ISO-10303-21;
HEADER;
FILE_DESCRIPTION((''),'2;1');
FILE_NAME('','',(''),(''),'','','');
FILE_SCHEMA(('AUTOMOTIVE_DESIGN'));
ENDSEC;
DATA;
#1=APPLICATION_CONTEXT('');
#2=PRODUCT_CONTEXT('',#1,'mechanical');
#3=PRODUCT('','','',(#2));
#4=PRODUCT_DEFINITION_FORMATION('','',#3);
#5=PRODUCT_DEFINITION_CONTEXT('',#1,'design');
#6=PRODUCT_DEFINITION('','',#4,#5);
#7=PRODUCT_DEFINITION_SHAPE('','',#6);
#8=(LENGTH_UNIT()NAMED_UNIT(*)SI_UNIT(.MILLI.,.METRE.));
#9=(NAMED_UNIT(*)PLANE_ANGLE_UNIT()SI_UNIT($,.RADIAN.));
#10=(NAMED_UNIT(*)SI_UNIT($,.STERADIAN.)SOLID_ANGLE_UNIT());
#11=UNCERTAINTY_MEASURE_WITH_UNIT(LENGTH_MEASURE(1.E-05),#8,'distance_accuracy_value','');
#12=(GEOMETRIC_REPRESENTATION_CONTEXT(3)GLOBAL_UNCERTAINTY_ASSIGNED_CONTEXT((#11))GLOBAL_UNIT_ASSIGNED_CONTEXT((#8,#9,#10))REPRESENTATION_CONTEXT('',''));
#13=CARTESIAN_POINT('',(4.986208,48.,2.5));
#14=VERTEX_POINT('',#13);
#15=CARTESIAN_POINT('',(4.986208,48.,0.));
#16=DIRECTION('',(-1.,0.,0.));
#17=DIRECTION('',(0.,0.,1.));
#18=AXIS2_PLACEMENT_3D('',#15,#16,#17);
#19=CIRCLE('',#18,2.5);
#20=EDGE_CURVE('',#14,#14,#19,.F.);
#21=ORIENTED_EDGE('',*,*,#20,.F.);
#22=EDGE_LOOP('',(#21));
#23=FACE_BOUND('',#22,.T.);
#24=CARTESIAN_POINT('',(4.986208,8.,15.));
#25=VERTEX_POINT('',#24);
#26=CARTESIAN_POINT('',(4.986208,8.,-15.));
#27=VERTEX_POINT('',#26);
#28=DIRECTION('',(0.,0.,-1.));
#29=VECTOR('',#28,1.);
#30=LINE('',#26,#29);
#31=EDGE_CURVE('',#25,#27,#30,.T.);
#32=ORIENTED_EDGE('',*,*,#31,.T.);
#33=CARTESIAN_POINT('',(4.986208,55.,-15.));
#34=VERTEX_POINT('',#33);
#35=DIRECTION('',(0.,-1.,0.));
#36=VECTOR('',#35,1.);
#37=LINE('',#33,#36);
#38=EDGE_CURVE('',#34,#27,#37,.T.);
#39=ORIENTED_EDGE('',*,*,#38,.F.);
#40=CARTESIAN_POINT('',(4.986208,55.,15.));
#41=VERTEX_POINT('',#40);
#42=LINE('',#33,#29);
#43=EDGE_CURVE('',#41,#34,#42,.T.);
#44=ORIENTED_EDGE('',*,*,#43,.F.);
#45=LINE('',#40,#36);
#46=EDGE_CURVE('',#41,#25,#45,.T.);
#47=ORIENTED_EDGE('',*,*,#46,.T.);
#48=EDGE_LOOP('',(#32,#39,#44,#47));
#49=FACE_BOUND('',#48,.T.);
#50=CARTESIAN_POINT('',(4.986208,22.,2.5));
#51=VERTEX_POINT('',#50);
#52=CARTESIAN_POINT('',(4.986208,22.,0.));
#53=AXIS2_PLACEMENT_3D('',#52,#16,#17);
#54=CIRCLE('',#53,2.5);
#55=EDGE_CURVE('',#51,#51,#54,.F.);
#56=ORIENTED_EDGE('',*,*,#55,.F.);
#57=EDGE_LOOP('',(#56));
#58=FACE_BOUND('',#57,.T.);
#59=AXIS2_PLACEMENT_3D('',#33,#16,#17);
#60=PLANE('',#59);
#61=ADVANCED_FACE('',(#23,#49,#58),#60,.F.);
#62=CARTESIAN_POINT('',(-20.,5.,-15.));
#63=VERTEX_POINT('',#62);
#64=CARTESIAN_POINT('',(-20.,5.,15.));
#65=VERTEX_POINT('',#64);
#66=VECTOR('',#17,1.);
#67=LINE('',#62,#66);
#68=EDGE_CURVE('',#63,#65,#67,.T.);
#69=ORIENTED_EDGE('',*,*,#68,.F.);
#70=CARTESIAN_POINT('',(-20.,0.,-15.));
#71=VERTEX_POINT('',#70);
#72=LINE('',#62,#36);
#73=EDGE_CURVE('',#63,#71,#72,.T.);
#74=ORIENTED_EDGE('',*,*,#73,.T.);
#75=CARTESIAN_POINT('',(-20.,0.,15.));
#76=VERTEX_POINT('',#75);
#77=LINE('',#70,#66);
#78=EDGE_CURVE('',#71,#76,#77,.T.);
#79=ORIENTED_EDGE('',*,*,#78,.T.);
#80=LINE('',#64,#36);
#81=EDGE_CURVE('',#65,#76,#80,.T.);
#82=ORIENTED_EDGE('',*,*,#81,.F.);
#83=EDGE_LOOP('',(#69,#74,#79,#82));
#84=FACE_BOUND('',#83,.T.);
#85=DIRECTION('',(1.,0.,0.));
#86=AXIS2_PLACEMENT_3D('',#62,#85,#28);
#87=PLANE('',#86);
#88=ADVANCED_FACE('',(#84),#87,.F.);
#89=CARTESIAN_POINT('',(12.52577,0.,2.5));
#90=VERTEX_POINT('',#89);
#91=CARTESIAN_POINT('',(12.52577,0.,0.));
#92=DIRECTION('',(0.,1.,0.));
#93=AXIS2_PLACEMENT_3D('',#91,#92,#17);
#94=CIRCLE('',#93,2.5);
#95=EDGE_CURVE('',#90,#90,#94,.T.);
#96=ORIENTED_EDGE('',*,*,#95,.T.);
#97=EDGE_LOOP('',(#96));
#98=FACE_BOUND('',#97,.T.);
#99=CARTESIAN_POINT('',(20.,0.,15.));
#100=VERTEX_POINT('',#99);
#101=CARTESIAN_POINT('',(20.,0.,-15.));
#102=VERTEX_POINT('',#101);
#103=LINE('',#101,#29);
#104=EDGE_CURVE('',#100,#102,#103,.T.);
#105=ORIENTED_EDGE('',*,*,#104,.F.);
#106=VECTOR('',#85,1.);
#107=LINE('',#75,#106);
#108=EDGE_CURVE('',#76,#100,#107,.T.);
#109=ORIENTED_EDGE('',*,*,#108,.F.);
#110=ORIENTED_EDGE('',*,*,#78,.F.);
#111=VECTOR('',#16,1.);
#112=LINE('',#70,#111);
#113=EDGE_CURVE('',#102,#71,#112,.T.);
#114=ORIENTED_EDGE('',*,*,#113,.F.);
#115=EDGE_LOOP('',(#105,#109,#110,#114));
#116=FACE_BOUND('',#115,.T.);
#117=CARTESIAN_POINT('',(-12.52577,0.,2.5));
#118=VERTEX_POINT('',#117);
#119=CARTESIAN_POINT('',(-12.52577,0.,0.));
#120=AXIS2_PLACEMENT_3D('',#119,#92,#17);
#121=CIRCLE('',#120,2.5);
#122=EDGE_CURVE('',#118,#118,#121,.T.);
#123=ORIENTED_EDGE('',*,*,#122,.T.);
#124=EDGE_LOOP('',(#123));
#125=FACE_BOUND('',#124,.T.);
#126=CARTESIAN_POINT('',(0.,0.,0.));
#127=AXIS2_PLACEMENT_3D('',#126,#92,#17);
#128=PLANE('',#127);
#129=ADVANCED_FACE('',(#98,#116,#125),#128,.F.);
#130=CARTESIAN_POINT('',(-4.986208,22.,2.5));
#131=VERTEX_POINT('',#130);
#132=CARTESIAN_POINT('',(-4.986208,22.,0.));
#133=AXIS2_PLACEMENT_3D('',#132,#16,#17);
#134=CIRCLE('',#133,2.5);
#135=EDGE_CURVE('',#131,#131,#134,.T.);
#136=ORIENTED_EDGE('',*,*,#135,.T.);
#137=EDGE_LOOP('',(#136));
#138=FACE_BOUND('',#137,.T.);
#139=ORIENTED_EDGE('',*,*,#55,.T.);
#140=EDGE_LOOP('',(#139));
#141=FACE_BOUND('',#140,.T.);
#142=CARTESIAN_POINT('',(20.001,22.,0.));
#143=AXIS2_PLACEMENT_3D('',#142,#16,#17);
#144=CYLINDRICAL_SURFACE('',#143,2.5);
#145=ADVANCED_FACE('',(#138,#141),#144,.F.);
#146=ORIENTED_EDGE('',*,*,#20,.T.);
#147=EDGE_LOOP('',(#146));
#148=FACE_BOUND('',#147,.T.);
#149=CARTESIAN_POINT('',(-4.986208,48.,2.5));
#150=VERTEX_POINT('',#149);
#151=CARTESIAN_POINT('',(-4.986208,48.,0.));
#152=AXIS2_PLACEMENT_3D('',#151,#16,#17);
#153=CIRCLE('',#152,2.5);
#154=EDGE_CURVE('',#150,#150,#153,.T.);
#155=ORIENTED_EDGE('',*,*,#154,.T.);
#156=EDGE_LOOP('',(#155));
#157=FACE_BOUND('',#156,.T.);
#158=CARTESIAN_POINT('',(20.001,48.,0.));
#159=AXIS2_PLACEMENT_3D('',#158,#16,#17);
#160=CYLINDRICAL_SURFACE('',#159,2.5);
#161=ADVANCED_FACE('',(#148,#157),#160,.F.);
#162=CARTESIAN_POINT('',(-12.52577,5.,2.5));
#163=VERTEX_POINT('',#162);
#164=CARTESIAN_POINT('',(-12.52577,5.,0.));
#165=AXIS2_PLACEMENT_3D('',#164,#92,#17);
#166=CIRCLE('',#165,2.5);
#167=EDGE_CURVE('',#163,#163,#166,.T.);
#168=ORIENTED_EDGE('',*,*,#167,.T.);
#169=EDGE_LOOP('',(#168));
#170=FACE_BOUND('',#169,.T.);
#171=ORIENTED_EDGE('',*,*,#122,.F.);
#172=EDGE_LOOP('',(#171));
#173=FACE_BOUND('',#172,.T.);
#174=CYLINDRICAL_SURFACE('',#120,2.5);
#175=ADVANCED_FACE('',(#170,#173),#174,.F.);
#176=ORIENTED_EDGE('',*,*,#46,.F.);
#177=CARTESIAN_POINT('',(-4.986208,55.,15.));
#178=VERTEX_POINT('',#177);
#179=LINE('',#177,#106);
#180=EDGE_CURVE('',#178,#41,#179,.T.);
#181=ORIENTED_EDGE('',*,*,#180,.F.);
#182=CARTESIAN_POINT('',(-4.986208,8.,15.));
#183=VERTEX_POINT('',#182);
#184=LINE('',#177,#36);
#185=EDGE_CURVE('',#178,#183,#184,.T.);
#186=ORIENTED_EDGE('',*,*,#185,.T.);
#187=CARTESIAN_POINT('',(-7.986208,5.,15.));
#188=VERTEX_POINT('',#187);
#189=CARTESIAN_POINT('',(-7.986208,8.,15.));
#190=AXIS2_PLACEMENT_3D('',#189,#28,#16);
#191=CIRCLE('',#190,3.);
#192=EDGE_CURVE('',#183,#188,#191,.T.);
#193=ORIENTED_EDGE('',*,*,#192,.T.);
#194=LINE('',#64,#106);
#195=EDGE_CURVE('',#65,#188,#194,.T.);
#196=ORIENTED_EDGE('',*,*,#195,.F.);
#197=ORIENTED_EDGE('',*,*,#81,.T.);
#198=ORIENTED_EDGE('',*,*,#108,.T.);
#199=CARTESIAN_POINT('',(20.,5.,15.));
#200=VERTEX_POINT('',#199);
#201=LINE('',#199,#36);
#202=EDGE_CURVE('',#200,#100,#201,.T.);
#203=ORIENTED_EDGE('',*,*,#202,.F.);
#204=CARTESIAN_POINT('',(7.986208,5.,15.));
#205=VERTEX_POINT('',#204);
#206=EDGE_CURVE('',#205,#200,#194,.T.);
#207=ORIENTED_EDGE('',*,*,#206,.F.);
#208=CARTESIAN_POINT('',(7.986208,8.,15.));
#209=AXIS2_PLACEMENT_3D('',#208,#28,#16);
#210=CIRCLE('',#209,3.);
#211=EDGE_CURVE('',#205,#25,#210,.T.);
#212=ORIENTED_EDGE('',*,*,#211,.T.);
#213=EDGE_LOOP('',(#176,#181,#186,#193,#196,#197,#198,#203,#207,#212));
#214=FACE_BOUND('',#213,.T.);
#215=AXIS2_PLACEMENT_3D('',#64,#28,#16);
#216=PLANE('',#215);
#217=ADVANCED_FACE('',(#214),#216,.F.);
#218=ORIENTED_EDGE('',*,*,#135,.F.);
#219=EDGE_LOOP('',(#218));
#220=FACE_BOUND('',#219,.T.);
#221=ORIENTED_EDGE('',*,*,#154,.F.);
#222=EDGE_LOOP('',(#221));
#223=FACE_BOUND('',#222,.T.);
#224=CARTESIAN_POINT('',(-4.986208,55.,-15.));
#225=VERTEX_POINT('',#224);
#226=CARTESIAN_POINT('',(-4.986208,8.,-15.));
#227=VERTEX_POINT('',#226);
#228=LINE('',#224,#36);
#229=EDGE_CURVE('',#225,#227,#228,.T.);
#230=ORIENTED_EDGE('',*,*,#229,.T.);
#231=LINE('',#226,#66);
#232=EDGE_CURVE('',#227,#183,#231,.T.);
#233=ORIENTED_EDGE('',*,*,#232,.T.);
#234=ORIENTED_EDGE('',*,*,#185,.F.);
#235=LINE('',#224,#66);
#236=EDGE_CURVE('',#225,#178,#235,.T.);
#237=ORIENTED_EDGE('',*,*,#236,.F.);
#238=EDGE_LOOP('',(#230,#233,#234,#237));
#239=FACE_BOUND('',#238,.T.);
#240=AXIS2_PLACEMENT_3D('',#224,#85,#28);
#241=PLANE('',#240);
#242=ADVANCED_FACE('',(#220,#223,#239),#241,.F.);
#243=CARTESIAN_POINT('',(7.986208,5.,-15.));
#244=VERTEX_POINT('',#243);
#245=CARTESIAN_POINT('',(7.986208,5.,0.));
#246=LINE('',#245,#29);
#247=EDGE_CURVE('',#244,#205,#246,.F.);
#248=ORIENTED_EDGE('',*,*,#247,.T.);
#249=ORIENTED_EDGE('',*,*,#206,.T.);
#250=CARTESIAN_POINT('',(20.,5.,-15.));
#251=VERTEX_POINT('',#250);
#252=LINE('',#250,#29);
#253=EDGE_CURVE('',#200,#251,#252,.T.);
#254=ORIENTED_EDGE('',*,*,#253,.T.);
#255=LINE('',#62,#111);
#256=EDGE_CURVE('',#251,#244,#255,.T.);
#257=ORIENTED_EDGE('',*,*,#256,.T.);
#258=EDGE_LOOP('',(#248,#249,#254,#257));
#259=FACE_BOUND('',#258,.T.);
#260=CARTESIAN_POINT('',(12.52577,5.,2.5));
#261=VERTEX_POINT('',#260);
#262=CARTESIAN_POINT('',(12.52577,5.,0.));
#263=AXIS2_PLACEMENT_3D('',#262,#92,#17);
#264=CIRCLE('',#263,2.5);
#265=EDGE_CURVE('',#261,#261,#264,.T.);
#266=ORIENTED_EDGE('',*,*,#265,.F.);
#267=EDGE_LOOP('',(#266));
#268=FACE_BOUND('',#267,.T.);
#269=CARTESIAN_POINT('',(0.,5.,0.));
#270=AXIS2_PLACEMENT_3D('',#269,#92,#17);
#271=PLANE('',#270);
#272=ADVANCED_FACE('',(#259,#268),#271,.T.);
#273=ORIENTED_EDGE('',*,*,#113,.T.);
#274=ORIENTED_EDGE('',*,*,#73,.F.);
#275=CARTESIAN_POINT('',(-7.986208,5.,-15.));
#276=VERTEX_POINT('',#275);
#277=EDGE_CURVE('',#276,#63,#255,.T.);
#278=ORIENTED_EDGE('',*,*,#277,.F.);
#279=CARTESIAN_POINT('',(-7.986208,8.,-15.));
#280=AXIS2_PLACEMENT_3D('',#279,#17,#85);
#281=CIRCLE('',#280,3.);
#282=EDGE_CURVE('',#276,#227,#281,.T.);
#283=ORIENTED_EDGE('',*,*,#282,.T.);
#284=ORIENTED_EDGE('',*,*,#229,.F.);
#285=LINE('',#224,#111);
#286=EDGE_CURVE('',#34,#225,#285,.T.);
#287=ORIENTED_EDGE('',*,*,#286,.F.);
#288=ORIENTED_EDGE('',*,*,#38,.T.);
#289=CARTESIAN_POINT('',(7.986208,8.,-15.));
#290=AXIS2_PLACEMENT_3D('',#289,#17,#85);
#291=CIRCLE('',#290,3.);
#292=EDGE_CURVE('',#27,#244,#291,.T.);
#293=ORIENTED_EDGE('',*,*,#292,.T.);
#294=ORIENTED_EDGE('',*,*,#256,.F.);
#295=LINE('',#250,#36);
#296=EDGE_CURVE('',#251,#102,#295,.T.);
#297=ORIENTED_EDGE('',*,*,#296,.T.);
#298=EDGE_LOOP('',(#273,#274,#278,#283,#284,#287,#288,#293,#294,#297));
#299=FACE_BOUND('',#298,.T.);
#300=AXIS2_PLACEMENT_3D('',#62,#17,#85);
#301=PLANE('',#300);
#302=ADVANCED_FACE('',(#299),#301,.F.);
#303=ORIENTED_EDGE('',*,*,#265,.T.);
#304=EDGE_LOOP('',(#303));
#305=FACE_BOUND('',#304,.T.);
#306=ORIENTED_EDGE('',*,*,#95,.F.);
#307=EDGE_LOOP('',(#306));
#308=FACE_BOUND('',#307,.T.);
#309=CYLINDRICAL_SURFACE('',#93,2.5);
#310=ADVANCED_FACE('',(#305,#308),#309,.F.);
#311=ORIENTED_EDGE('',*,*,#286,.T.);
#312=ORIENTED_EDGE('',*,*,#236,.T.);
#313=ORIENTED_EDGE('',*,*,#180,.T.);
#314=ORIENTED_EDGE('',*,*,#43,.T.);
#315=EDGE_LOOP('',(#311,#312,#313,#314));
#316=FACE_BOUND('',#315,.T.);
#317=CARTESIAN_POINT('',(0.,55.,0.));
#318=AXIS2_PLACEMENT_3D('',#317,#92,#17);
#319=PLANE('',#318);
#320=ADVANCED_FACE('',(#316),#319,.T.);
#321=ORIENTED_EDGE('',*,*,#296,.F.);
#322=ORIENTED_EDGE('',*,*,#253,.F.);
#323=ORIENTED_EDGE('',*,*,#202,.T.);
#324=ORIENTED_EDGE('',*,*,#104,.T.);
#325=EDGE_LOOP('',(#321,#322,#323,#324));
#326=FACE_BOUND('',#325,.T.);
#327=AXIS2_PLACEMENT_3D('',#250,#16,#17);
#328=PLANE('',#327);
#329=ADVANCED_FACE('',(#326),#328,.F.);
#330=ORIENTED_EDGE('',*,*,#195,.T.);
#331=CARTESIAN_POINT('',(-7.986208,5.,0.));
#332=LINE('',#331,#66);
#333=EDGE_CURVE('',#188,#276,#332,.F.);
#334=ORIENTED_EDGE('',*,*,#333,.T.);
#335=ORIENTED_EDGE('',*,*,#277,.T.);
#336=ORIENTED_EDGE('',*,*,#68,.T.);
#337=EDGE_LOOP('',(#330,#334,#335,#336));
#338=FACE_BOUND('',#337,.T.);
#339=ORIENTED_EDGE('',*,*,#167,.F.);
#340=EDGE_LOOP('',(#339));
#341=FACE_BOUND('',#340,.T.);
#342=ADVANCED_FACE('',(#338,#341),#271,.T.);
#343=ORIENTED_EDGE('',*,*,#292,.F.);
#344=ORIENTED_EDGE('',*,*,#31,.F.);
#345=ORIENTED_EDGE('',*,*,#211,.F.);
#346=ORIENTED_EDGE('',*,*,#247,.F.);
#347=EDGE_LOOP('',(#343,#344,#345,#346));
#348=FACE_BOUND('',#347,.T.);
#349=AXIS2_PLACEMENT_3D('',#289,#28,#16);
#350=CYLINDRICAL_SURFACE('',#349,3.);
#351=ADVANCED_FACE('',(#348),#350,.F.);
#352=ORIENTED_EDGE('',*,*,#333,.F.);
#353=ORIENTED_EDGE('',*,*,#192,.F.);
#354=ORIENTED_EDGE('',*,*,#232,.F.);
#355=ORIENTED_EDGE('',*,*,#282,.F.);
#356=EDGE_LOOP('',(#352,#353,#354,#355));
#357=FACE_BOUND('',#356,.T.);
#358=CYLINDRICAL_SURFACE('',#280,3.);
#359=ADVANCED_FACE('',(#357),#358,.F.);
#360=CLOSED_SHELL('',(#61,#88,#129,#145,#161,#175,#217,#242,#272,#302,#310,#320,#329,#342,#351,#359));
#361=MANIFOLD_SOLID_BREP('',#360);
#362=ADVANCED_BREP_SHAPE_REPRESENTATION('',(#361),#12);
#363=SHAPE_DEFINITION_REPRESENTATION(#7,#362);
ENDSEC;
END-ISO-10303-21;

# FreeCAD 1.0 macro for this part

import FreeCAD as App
import Part
import Sketcher
Q = App.Units.Quantity


def edges_at(feature, points):
    """Names of the edges that pass closest to the given points."""
    edges = feature.Shape.Edges
    near = lambda p: min(range(len(edges)), key=lambda i: edges[i].distToShape(Part.Vertex(*p))[0])
    return sorted({f"Edge{near(p) + 1}" for p in points})

doc = App.newDocument("Part")
body = doc.addObject("PartDesign::Body", "Body")

sketch1 = body.newObject("Sketcher::SketchObject", "Sketch")
sketch1.AttachmentSupport = (doc.getObject("XZ_Plane"), [""])
sketch1.MapMode = "FlatFace"
sketch1.addGeometry(Part.LineSegment(App.Vector(-20, -15, 0), App.Vector(-20, 15, 0)), False)
sketch1.addGeometry(Part.LineSegment(App.Vector(-20, 15, 0), App.Vector(20, 15, 0)), False)
sketch1.addGeometry(Part.LineSegment(App.Vector(20, 15, 0), App.Vector(20, -15, 0)), False)
sketch1.addGeometry(Part.LineSegment(App.Vector(20, -15, 0), App.Vector(-20, -15, 0)), False)
sketch1.addConstraint(Sketcher.Constraint("Coincident", 0, 2, 1, 1))
sketch1.addConstraint(Sketcher.Constraint("Coincident", 1, 2, 2, 1))
sketch1.addConstraint(Sketcher.Constraint("Coincident", 2, 2, 3, 1))
sketch1.addConstraint(Sketcher.Constraint("Coincident", 3, 2, 0, 1))
sketch1.addConstraint(Sketcher.Constraint("Vertical", 0))
sketch1.addConstraint(Sketcher.Constraint("Horizontal", 1))
sketch1.addConstraint(Sketcher.Constraint("Vertical", 2))
sketch1.addConstraint(Sketcher.Constraint("Horizontal", 3))
sketch1.addConstraint(Sketcher.Constraint("Symmetric", 0, 2, 2, 2, -1, 1))
sketch1.addConstraint(Sketcher.Constraint("DistanceX", 1, 1, 1, 2, Q("40 mm")))
sketch1.addConstraint(Sketcher.Constraint("DistanceY", 0, 1, 0, 2, Q("30 mm")))
pad1 = body.newObject("PartDesign::Pad", "Pad")
pad1.Profile = sketch1
pad1.Length = 5
pad1.Reversed = True

sketch2 = body.newObject("Sketcher::SketchObject", "Sketch001")
sketch2.AttachmentSupport = (doc.getObject("XZ_Plane"), [""])
sketch2.MapMode = "FlatFace"
sketch2.AttachmentOffset = App.Placement(App.Vector(0, 0, -5), App.Rotation())
sketch2.addGeometry(Part.LineSegment(App.Vector(-5, -15, 0), App.Vector(-5, 15, 0)), False)
sketch2.addGeometry(Part.LineSegment(App.Vector(-5, 15, 0), App.Vector(5, 15, 0)), False)
sketch2.addGeometry(Part.LineSegment(App.Vector(5, 15, 0), App.Vector(5, -15, 0)), False)
sketch2.addGeometry(Part.LineSegment(App.Vector(5, -15, 0), App.Vector(-5, -15, 0)), False)
sketch2.addConstraint(Sketcher.Constraint("Coincident", 0, 2, 1, 1))
sketch2.addConstraint(Sketcher.Constraint("Coincident", 1, 2, 2, 1))
sketch2.addConstraint(Sketcher.Constraint("Coincident", 2, 2, 3, 1))
sketch2.addConstraint(Sketcher.Constraint("Coincident", 3, 2, 0, 1))
sketch2.addConstraint(Sketcher.Constraint("Vertical", 0))
sketch2.addConstraint(Sketcher.Constraint("Horizontal", 1))
sketch2.addConstraint(Sketcher.Constraint("Vertical", 2))
sketch2.addConstraint(Sketcher.Constraint("Horizontal", 3))
sketch2.addConstraint(Sketcher.Constraint("Symmetric", 0, 2, 2, 2, -1, 1))
sketch2.addConstraint(Sketcher.Constraint("DistanceY", 0, 1, 0, 2, Q("30 mm")))
sketch2.addConstraint(Sketcher.Constraint("DistanceX", 1, 1, 1, 2, Q("9.972416 mm")))
pad2 = body.newObject("PartDesign::Pad", "Pad001")
pad2.Profile = sketch2
pad2.Length = 50
pad2.Reversed = True

sketch3 = body.newObject("Sketcher::SketchObject", "Sketch002")
sketch3.AttachmentSupport = (doc.getObject("XZ_Plane"), [""])
sketch3.MapMode = "FlatFace"
sketch3.AttachmentOffset = App.Placement(App.Vector(0, 0, -5), App.Rotation())
sketch3.addGeometry(Part.Circle(App.Vector(-12.5, 0, 0), App.Vector(0, 0, 1), 2.5), False)
sketch3.addGeometry(Part.Circle(App.Vector(12.5, 0, 0), App.Vector(0, 0, 1), 2.5), False)
sketch3.addConstraint(Sketcher.Constraint("Equal", 0, 1))
sketch3.addConstraint(Sketcher.Constraint("Symmetric", 0, 3, 1, 3, -1, 1))
sketch3.addConstraint(Sketcher.Constraint("PointOnObject", 0, 3, -1))
sketch3.addConstraint(Sketcher.Constraint("Diameter", 0, Q("5 mm")))
sketch3.addConstraint(Sketcher.Constraint("DistanceX", 0, 3, -1, 1, Q("12.52577 mm")))
pocket1 = body.newObject("PartDesign::Pocket", "Pocket")
pocket1.Profile = sketch3
pocket1.Type = "ThroughAll"
pocket1.Reversed = True

sketch4 = body.newObject("Sketcher::SketchObject", "Sketch003")
sketch4.AttachmentSupport = (doc.getObject("YZ_Plane"), [""])
sketch4.MapMode = "FlatFace"
sketch4.AttachmentOffset = App.Placement(App.Vector(0, 0, -4.986208), App.Rotation())
sketch4.addGeometry(Part.Circle(App.Vector(48, 0, 0), App.Vector(0, 0, 1), 2.5), False)
sketch4.addConstraint(Sketcher.Constraint("PointOnObject", 0, 3, -1))
sketch4.addConstraint(Sketcher.Constraint("Diameter", 0, Q("5 mm")))
sketch4.addConstraint(Sketcher.Constraint("DistanceX", -1, 1, 0, 3, Q("48 mm")))
pocket2 = body.newObject("PartDesign::Pocket", "Pocket001")
pocket2.Profile = sketch4
pocket2.Type = "UpToFirst"
pocket2.Reversed = True

sketch5 = body.newObject("Sketcher::SketchObject", "Sketch004")
sketch5.AttachmentSupport = (doc.getObject("YZ_Plane"), [""])
sketch5.MapMode = "FlatFace"
sketch5.AttachmentOffset = App.Placement(App.Vector(0, 0, -4.986208), App.Rotation())
sketch5.addGeometry(Part.Circle(App.Vector(22, 0, 0), App.Vector(0, 0, 1), 2.5), False)
sketch5.addConstraint(Sketcher.Constraint("PointOnObject", 0, 3, -1))
sketch5.addConstraint(Sketcher.Constraint("Diameter", 0, Q("5 mm")))
sketch5.addConstraint(Sketcher.Constraint("DistanceX", -1, 1, 0, 3, Q("22 mm")))
pocket3 = body.newObject("PartDesign::Pocket", "Pocket002")
pocket3.Profile = sketch5
pocket3.Type = "UpToFirst"
pocket3.Reversed = True
doc.recompute()

fillet = body.newObject("PartDesign::Fillet", "Fillet")
fillet.Base = (pocket3, edges_at(pocket3, [(4.986, 5, 0), (-4.986, 5, 0)]))
fillet.Radius = 3

doc.recompute()
